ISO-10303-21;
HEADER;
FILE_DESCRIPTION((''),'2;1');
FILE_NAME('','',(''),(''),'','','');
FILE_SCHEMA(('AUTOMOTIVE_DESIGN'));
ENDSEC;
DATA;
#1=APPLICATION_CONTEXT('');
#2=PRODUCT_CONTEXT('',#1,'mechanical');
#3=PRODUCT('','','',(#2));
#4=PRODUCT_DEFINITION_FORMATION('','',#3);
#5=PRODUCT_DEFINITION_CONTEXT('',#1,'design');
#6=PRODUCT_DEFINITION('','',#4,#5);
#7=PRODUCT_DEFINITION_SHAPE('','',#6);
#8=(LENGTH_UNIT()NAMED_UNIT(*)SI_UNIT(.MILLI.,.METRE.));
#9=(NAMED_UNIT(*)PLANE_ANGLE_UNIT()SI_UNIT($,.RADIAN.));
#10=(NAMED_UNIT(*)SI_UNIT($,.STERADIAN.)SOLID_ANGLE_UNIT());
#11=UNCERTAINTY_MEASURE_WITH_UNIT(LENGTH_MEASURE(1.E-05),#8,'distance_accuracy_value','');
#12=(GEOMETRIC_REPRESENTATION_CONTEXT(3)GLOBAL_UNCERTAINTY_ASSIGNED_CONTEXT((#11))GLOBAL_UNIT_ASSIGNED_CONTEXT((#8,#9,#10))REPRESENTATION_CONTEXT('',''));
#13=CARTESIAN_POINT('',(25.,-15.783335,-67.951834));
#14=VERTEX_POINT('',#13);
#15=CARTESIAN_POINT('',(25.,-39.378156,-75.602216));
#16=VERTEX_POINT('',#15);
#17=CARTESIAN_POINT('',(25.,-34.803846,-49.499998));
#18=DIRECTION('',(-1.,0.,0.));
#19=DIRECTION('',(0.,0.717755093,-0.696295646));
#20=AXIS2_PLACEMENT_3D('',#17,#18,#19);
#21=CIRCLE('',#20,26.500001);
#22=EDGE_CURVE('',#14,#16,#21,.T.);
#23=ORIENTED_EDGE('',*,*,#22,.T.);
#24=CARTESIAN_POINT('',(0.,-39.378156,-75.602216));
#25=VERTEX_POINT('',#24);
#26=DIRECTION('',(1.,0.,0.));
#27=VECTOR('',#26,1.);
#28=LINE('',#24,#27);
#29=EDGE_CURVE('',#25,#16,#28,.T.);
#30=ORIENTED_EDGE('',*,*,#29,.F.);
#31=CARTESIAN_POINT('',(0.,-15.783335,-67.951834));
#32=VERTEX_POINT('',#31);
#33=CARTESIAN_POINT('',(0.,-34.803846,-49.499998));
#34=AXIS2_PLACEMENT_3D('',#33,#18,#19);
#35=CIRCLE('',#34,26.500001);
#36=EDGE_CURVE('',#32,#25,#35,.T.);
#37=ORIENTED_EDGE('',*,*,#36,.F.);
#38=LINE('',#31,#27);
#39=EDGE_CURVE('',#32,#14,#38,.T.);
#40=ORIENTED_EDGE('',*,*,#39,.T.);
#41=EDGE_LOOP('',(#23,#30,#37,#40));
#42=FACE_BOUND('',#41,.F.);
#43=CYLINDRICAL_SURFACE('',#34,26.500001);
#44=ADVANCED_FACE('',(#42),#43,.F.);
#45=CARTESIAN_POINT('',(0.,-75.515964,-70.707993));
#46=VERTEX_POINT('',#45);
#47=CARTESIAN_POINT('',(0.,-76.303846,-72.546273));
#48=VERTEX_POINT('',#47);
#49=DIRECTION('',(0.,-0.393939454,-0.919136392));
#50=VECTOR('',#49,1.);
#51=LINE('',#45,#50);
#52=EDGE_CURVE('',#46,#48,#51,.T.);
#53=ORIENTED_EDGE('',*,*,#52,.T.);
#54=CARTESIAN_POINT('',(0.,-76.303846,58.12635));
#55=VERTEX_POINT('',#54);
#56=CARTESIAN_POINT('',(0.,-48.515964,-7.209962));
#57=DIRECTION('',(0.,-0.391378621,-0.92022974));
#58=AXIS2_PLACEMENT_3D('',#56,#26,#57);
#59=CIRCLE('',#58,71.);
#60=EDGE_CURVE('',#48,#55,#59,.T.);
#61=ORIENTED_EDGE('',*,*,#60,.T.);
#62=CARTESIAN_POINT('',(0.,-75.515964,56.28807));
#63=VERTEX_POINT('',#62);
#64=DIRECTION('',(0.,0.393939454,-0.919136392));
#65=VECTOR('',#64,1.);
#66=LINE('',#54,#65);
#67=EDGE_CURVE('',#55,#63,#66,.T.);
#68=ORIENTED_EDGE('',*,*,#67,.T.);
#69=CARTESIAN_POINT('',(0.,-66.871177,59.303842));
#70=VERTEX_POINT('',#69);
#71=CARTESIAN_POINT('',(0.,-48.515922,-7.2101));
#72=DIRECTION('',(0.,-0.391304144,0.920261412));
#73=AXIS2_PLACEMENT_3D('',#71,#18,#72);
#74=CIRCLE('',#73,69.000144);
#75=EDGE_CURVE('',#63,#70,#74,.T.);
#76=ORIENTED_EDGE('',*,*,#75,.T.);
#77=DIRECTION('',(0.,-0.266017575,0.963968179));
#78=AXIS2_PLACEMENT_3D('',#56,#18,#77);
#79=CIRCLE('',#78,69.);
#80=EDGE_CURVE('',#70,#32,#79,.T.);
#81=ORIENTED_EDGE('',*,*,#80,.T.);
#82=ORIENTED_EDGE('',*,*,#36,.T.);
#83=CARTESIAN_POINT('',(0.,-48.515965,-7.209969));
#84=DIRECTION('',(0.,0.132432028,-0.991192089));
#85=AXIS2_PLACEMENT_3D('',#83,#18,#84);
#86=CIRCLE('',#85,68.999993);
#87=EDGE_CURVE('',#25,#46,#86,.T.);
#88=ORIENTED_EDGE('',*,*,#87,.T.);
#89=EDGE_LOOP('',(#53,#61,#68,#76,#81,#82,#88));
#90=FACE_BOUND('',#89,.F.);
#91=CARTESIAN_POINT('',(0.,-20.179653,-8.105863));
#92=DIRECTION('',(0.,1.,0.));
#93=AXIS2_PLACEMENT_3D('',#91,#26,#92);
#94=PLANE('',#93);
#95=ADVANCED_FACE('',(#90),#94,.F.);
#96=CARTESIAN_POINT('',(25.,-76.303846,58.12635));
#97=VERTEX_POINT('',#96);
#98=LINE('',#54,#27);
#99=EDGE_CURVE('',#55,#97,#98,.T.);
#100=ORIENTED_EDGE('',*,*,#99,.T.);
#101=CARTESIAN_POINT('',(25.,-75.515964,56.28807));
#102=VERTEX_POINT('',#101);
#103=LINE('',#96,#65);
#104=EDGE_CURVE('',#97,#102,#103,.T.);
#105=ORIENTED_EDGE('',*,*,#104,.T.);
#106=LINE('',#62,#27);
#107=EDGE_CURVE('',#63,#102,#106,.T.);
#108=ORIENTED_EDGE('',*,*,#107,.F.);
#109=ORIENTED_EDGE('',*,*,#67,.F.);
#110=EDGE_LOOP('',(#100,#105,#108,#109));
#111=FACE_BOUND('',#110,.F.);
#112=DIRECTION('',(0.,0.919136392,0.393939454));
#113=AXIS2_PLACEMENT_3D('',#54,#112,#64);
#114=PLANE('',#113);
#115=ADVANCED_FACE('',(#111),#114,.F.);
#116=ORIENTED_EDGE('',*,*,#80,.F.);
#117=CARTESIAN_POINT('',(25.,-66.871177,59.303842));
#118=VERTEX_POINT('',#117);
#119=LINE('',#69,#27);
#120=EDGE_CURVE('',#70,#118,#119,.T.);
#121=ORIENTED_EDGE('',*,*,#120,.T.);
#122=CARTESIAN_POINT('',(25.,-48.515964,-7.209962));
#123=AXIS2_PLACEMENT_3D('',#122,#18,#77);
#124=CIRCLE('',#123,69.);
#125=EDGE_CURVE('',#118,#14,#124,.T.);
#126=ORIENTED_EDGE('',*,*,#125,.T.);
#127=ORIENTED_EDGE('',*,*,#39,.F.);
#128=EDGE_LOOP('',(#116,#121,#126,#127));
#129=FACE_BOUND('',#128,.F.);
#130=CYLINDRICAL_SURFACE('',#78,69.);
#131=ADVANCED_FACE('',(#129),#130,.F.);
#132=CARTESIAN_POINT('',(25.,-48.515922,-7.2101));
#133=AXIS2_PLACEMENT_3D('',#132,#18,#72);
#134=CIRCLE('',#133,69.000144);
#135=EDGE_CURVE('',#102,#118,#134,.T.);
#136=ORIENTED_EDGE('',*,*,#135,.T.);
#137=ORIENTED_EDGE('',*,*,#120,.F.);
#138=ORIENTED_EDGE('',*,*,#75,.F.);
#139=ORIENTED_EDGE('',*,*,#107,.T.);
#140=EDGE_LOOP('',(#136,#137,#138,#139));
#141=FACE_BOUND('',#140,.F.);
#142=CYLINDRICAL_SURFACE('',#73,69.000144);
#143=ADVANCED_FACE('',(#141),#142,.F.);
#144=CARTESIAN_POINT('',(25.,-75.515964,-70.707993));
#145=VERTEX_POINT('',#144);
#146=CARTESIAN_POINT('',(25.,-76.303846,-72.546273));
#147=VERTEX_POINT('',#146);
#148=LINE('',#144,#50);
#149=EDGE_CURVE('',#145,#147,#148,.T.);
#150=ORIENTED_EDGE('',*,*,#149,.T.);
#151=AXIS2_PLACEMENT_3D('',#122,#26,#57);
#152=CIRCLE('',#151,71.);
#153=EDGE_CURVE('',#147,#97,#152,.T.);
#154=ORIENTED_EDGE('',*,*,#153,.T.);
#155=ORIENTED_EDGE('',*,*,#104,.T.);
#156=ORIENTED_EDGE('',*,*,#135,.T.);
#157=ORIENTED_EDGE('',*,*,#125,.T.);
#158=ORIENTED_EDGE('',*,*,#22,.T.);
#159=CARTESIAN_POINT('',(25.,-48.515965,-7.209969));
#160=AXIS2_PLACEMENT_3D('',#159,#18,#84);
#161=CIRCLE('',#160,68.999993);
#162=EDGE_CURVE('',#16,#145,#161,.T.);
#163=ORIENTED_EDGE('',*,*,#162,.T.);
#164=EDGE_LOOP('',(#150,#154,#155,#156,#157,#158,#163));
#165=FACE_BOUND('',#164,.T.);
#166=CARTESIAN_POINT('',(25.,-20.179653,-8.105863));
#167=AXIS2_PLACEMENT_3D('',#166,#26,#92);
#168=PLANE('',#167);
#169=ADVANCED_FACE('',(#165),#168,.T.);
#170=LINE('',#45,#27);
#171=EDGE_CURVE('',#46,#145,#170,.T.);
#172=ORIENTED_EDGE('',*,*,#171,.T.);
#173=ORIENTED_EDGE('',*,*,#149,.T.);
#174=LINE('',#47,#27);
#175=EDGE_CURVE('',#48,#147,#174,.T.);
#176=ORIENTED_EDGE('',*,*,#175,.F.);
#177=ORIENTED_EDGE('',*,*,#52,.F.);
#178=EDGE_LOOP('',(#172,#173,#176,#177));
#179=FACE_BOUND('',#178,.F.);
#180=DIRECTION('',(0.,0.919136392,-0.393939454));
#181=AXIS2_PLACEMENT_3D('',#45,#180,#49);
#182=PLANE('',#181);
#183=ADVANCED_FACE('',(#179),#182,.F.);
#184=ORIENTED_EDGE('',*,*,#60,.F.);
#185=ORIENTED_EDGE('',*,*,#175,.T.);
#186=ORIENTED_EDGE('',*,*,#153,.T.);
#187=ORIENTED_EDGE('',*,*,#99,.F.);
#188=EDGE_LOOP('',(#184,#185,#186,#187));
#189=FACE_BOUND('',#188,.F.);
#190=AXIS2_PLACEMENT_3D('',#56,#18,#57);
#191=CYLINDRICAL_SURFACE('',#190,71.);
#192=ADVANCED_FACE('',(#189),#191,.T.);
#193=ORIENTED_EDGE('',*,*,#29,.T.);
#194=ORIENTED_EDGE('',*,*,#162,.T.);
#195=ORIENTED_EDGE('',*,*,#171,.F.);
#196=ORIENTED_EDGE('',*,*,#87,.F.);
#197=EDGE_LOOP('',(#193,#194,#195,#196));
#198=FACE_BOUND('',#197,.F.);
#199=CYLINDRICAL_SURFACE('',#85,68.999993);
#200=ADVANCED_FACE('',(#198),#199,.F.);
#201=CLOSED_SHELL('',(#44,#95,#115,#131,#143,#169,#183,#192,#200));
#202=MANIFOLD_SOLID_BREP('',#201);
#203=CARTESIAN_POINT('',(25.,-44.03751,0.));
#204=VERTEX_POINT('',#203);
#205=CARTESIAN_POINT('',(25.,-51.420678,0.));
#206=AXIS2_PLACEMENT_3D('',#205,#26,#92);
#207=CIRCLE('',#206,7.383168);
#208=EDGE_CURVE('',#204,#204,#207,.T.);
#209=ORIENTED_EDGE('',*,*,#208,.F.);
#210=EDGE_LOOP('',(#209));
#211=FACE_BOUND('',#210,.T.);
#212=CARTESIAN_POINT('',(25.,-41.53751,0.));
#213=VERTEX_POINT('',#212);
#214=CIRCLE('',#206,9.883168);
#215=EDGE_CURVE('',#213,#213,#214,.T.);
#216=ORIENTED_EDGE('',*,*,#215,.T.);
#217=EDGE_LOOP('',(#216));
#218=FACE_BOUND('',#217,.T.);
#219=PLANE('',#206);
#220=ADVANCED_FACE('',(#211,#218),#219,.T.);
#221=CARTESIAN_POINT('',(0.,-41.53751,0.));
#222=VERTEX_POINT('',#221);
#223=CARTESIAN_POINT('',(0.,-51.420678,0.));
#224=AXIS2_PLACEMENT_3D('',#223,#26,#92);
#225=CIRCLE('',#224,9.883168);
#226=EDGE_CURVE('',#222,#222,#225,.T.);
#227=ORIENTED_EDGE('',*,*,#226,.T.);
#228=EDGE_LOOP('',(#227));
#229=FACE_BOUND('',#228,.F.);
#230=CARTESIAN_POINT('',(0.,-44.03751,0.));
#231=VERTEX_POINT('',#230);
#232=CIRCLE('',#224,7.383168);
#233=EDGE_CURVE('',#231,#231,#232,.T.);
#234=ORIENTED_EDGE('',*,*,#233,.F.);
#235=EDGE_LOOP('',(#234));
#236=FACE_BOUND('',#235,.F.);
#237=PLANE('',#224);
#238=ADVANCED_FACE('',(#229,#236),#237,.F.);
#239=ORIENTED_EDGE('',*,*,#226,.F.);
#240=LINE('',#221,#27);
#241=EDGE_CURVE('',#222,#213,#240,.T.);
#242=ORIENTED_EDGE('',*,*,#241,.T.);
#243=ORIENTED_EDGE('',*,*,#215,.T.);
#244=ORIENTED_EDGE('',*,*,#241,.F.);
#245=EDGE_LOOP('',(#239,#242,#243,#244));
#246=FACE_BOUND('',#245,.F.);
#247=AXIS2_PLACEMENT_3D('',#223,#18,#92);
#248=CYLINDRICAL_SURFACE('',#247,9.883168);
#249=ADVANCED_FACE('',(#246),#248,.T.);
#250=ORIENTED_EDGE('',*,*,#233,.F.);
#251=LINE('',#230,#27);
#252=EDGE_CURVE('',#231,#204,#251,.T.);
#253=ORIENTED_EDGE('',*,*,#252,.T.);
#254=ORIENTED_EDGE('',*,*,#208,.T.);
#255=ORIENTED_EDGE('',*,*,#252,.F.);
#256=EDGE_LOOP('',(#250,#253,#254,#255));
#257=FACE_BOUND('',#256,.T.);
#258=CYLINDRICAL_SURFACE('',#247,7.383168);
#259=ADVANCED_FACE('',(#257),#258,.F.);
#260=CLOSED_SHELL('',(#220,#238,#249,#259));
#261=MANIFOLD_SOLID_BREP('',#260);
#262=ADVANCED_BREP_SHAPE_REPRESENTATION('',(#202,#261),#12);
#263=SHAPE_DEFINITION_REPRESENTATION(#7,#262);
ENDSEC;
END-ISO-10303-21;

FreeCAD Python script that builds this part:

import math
import FreeCAD as App
import Part
import Sketcher
from FreeCAD import Vector
Q = App.Units.Quantity

doc = App.newDocument("Part")
body = doc.addObject("PartDesign::Body", "Body")
body.AllowCompound = True

# Sketch on YZ plane
sketch1 = body.newObject("Sketcher::SketchObject", "Sketch")
sketch1.AttachmentSupport = (doc.getObject("YZ_Plane"), [""])
sketch1.MapMode = "FlatFace"
sketch1.addGeometry([
    Part.Circle(Vector(-51.4, 0, 0), Vector(0, 0, 1), 9.9),  # 0
    Part.Circle(Vector(-51.4, 0, 0), Vector(0, 0, 1), 7.4),  # 1
    Part.ArcOfCircle(Part.Circle(Vector(-48.5, -7.2, 0), Vector(0, 0, 1), 71), math.radians(-113), math.radians(113)),  # 2
    Part.LineSegment(Vector(-76.3, 58.1, 0), Vector(-75.5, 56.3, 0)),  # 3
    Part.ArcOfCircle(Part.Circle(Vector(-48.5, -7.2, 0), Vector(0, 0, 1), 69), math.radians(105.43), math.radians(113.04)),  # 4
    Part.ArcOfCircle(Part.Circle(Vector(-48.5, -7.2, 0), Vector(0, 0, 1), 69), math.radians(-62), math.radians(105)),  # 5
    Part.ArcOfCircle(Part.Circle(Vector(-34.8, -49.5, 0), Vector(0, 0, 1), 26.5), math.radians(-100), math.radians(-44)),  # 6
    Part.ArcOfCircle(Part.Circle(Vector(-48.5, -7.2, 0), Vector(0, 0, 1), 69), math.radians(-113), math.radians(-82)),  # 7
    Part.LineSegment(Vector(-75.5, -70.7, 0), Vector(-76.3, -72.5, 0)),  # 8
], False)
sketch1.addConstraint([
    Sketcher.Constraint("Coincident", 2, 2, 3, 1),
    Sketcher.Constraint("Coincident", 3, 2, 4, 2),
    Sketcher.Constraint("Tangent", 4, 1, 5, 2),
    Sketcher.Constraint("Coincident", 5, 1, 6, 2),
    Sketcher.Constraint("Coincident", 6, 1, 7, 2),
    Sketcher.Constraint("Coincident", 7, 1, 8, 1),
    Sketcher.Constraint("Coincident", 8, 2, 2, 1),
    Sketcher.Constraint("Coincident", 1, 3, 0, 3),
    Sketcher.Constraint("Coincident", 5, 3, 2, 3),
    Sketcher.Constraint("Coincident", 7, 3, 2, 3),
    Sketcher.Constraint("PointOnObject", 0, 3, -1),
    Sketcher.Constraint("Vertical", 3, 2, 7, 1),
    Sketcher.Constraint("Vertical", 2, 2, 8, 2),
    Sketcher.Constraint("Equal", 3, 8),
    Sketcher.Constraint("Radius", 2, Q("71 mm")),
    Sketcher.Constraint("Radius", 5, Q("69 mm")),
    Sketcher.Constraint("Radius", 6, Q("26.500001 mm")),
    Sketcher.Constraint("DistanceX", 3, 2, 2, 3, Q("27 mm")),
    Sketcher.Constraint("DistanceY", 6, 3, -1, 1, Q("49.499998 mm")),
    Sketcher.Constraint("DistanceX", 8, 2, 6, 3, Q("41.5 mm")),
    Sketcher.Constraint("Diameter", 0, Q("19.766336 mm")),
    Sketcher.Constraint("Diameter", 1, Q("14.766336 mm")),
    Sketcher.Constraint("Radius", 4, Q("69.000144 mm")),
    Sketcher.Constraint("DistanceY", 4, 3, -1, 1, Q("7.2101 mm")),
    Sketcher.Constraint("DistanceX", 4, 1, 0, 3, Q("15.450499 mm")),
    Sketcher.Constraint("DistanceX", 0, 3, -1, 1, Q("51.420678 mm")),
    Sketcher.Constraint("DistanceX", 4, 3, -1, 1, Q("48.515922 mm")),
    Sketcher.Constraint("DistanceY", -1, 1, 2, 2, Q("58.12635 mm")),
])
pad1 = body.newObject("PartDesign::Pad", "Pad")
pad1.Profile = sketch1
pad1.Length = 25

doc.recompute()
